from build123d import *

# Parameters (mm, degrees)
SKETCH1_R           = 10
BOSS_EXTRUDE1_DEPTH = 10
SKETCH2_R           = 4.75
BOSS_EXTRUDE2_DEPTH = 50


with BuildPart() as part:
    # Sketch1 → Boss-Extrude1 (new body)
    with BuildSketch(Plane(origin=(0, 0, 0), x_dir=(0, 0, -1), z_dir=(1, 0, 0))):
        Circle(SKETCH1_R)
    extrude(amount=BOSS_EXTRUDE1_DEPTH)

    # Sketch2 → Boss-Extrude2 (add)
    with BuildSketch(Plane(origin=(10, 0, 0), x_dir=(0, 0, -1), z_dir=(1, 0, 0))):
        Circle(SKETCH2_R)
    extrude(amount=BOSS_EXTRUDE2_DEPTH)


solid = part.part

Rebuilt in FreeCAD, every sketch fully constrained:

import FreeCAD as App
import Part
import Sketcher

doc = App.newDocument("Part")
params = doc.addObject("Spreadsheet::Sheet", "Params")
for row, (alias, value) in enumerate([
    ("sketch1_diameter", "20 mm"),
    ("pad1_length", "10 mm"),
    ("sketch2_diameter", "9.5 mm"),
    ("pad2_length", "50 mm"),
], start=1):
    params.set(f"A{row}", alias)
    params.set(f"B{row}", "=" + value)
    params.setAlias(f"B{row}", alias)

body = doc.addObject("PartDesign::Body", "Body")

# Sketch on YZ plane
sketch1 = doc.addObject("Sketcher::SketchObject", "Sketch")
body.addObject(sketch1)
sketch1.AttachmentSupport = (doc.YZ_Plane, [""])
sketch1.MapMode = "FlatFace"
sketch1.addGeometry(Part.Circle(App.Vector(0, 0, 0), App.Vector(0, 0, 1), 10), False)
sketch1.addConstraint([
    Sketcher.Constraint("Coincident", 0, 3, -1, 1),
    Sketcher.Constraint("Diameter", 0, 20.0),
])
sketch1.setExpression("Constraints[1]", "Params.sketch1_diameter")
pad1 = doc.addObject("PartDesign::Pad", "Pad")
body.addObject(pad1)
pad1.Profile = sketch1
pad1.setExpression("Length", "Params.pad1_length")

# Sketch on YZ plane
sketch2 = doc.addObject("Sketcher::SketchObject", "Sketch001")
body.addObject(sketch2)
sketch2.AttachmentSupport = (doc.YZ_Plane, [""])
sketch2.MapMode = "FlatFace"
sketch2.AttachmentOffset = App.Placement(App.Vector(0, 0, 10), App.Rotation())
sketch2.addGeometry(Part.Circle(App.Vector(0, 0, 0), App.Vector(0, 0, 1), 4.75), False)
sketch2.addConstraint([
    Sketcher.Constraint("Coincident", 0, 3, -1, 1),
    Sketcher.Constraint("Diameter", 0, 9.5),
])
sketch2.setExpression("Constraints[1]", "Params.sketch2_diameter")
pad2 = doc.addObject("PartDesign::Pad", "Pad001")
body.addObject(pad2)
pad2.Profile = sketch2
pad2.setExpression("Length", "Params.pad2_length")

doc.recompute()
